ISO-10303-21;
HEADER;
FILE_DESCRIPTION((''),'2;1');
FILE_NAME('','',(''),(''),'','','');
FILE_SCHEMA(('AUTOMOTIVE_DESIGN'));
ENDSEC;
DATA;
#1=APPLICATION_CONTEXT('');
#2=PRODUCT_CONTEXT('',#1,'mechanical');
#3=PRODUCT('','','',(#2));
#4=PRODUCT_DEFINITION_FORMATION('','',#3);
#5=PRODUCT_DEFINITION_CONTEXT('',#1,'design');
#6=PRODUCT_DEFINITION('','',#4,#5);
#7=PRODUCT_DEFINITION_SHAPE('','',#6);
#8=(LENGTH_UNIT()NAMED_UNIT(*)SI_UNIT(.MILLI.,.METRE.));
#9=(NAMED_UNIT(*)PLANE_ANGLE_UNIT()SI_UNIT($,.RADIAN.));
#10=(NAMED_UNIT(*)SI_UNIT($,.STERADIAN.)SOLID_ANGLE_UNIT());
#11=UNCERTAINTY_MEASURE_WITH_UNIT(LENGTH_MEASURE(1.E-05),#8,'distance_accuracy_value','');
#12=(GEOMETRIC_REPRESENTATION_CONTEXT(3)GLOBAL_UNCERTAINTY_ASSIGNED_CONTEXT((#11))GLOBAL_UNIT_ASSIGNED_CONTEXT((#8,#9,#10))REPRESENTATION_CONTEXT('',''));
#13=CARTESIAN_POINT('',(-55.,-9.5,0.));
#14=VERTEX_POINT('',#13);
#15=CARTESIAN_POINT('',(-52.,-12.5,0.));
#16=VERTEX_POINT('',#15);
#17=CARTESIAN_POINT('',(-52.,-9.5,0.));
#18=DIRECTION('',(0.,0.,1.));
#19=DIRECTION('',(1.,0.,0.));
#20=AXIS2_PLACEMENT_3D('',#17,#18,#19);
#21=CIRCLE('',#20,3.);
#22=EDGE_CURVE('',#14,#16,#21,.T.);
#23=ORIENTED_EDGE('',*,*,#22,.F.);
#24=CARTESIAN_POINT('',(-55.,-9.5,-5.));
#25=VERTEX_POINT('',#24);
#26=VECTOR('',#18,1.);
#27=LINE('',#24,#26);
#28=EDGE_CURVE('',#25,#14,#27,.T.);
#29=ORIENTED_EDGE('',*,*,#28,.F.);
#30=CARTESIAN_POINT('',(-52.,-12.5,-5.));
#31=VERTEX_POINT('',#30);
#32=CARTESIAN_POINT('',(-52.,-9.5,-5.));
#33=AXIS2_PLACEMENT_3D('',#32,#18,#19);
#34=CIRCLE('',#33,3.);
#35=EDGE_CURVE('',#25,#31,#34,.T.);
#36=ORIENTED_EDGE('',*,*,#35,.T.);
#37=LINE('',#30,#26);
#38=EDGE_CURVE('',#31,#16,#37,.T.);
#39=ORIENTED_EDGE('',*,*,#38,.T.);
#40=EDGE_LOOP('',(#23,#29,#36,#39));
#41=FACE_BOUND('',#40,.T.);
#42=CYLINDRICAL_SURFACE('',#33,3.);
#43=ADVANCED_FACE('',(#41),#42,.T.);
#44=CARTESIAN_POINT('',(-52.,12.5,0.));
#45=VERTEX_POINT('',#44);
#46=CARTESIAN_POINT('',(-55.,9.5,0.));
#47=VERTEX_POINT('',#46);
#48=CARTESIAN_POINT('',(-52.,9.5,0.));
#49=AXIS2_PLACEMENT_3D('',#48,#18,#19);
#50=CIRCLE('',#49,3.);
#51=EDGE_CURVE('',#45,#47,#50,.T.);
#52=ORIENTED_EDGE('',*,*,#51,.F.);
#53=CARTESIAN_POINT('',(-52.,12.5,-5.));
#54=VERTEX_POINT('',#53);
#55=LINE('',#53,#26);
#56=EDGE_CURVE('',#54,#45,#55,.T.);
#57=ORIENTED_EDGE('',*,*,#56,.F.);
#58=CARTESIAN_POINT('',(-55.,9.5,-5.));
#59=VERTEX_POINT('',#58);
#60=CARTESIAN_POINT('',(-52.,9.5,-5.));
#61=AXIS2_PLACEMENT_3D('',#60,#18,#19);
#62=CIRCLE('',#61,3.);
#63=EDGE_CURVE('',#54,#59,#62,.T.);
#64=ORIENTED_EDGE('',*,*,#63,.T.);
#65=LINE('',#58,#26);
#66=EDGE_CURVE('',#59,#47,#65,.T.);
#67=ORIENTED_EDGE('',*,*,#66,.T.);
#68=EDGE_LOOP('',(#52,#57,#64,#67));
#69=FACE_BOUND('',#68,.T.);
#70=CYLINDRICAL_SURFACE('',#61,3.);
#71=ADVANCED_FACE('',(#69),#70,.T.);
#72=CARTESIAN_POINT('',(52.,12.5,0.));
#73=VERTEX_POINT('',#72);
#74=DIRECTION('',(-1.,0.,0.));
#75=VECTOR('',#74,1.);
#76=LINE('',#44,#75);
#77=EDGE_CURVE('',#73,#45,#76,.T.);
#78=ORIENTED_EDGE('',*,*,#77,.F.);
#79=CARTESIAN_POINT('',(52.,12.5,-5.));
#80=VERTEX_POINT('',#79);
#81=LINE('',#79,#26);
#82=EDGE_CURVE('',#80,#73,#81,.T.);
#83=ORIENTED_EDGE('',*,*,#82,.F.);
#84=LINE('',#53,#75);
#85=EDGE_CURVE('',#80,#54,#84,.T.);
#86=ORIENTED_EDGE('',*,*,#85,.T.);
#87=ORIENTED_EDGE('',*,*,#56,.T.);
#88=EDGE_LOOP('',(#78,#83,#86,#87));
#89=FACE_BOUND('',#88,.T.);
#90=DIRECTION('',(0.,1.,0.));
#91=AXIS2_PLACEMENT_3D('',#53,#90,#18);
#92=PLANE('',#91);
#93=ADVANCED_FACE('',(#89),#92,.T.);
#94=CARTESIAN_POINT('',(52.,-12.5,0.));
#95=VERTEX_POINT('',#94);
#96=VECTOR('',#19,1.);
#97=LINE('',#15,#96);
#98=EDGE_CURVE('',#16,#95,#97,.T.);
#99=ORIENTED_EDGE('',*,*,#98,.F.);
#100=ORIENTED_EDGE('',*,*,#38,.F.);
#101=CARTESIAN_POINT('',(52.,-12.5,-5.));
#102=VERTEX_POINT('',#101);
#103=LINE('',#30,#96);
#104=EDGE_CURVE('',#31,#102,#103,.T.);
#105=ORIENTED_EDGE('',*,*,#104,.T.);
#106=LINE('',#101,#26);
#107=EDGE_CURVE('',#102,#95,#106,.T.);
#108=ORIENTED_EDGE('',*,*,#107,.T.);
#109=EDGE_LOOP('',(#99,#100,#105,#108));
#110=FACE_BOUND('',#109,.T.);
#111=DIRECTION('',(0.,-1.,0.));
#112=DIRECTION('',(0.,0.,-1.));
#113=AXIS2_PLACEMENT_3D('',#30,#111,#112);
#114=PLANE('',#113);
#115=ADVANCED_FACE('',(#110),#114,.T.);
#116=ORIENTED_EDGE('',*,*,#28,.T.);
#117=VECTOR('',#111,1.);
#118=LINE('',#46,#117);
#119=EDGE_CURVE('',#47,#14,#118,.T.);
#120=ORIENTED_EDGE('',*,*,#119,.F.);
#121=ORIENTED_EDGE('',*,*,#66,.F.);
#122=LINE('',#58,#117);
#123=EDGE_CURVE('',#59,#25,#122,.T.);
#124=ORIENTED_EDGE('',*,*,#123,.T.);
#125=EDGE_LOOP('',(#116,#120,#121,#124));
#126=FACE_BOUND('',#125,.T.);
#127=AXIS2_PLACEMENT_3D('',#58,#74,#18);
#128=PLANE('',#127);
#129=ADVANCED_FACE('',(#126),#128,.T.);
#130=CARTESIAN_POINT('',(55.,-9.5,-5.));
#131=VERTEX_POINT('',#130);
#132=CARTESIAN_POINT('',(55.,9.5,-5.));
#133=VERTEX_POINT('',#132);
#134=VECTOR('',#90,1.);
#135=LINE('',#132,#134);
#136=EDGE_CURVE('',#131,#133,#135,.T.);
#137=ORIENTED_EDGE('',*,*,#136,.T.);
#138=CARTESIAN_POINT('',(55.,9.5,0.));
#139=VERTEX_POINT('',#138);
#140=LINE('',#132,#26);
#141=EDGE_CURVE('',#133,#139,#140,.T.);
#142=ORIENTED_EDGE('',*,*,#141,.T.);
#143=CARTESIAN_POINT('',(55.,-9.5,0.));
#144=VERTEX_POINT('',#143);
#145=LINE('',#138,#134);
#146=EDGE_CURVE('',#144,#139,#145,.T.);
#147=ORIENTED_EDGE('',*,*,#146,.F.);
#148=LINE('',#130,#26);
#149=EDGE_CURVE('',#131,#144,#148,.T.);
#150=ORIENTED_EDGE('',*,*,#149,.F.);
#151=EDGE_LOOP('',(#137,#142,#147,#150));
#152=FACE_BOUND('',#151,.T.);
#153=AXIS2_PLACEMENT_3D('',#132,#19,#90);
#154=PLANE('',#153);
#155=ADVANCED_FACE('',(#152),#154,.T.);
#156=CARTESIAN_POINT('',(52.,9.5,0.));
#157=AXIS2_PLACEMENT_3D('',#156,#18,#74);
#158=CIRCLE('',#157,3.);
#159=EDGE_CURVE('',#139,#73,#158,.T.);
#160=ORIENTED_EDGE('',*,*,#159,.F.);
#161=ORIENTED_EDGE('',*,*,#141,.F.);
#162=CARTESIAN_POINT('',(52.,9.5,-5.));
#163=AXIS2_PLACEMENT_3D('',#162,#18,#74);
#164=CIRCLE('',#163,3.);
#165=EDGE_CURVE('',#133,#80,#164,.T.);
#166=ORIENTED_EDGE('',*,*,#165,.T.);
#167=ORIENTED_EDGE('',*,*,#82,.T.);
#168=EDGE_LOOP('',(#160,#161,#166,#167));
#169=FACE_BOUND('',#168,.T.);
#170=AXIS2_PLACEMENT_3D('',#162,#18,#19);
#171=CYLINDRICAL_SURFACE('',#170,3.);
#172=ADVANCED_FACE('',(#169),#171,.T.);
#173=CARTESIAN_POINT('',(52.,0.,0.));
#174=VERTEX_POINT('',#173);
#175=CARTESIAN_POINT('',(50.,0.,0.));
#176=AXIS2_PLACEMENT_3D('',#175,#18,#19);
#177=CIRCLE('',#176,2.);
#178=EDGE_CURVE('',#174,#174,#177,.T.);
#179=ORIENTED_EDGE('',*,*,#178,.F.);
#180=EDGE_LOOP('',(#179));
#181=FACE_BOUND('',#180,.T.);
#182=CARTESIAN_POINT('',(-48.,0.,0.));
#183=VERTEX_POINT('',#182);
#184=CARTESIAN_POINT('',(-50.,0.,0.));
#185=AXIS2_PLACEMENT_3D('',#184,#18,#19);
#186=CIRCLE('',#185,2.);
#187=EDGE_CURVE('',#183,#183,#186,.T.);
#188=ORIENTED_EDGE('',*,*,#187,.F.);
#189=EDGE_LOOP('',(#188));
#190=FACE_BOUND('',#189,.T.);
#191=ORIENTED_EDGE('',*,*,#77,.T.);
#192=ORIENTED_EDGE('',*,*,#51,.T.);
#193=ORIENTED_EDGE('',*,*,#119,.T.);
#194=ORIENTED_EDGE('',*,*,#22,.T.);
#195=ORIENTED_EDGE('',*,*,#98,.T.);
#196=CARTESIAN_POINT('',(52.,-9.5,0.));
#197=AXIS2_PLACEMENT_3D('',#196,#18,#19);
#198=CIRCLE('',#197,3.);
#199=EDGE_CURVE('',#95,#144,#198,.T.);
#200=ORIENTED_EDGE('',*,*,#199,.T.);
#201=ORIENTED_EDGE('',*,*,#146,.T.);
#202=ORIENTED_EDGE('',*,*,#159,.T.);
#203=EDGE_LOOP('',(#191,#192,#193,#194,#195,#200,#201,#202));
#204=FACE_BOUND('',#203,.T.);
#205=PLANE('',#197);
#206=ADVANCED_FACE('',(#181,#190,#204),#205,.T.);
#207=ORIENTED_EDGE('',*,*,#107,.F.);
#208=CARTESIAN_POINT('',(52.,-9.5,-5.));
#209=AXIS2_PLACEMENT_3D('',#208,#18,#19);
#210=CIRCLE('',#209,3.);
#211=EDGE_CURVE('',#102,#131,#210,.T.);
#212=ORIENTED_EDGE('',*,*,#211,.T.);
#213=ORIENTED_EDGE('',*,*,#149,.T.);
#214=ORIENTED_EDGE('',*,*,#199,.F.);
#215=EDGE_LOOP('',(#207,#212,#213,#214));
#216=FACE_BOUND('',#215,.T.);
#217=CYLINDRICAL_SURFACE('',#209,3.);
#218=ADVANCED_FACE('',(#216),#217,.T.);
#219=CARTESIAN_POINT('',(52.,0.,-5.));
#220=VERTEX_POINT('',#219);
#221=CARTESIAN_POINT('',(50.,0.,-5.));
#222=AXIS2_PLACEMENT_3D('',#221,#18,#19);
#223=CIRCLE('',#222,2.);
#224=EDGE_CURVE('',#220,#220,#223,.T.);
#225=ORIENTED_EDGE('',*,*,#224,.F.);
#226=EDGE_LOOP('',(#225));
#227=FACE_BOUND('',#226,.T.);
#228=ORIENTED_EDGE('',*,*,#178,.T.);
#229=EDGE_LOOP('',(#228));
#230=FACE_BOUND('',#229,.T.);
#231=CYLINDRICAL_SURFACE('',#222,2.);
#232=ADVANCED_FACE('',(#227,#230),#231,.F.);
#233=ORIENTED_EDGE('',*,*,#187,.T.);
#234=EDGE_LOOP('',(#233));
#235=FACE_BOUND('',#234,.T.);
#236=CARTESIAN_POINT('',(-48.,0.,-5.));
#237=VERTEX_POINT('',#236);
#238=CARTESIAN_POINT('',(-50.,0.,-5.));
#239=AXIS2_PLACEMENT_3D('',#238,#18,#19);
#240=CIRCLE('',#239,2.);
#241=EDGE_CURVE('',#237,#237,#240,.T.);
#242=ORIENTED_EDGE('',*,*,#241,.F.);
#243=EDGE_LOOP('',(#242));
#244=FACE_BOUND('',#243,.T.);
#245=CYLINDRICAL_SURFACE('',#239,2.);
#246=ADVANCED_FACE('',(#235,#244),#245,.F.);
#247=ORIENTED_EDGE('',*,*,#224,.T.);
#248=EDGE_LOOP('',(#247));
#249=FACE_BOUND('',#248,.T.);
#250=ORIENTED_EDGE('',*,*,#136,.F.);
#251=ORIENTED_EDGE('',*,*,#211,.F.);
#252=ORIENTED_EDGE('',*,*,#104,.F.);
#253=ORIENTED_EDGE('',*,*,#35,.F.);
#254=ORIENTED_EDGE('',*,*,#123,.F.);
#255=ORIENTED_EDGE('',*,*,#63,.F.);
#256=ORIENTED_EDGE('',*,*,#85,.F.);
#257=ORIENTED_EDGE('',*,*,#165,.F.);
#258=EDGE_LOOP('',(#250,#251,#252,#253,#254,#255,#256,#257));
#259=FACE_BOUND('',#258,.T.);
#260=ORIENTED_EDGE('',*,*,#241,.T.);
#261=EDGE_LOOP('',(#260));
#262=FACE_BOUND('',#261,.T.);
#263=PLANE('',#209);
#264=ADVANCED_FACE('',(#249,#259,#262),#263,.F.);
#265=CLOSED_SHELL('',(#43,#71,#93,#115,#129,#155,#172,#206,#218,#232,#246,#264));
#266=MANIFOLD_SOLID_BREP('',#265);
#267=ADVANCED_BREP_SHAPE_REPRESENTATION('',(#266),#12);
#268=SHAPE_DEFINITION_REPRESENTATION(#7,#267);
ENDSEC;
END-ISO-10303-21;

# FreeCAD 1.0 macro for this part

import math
import FreeCAD as App
import Part
import Sketcher
from FreeCAD import Vector
Q = App.Units.Quantity

doc = App.newDocument("Part")
body = doc.addObject("PartDesign::Body", "Body")

# Sketch on XY plane
sketch1 = body.newObject("Sketcher::SketchObject", "Sketch")
sketch1.AttachmentSupport = (doc.getObject("XY_Plane"), [""])
sketch1.MapMode = "FlatFace"
sketch1.addGeometry([
    Part.LineSegment(Vector(52, 12.5, 0), Vector(-52, 12.5, 0)),  # 0
    Part.ArcOfCircle(Part.Circle(Vector(-52, 9.5, 0), Vector(0, 0, 1), 3), math.radians(90), math.radians(180)),  # 1
    Part.LineSegment(Vector(-55, 9.5, 0), Vector(-55, -9.5, 0)),  # 2
    Part.ArcOfCircle(Part.Circle(Vector(-52, -9.5, 0), Vector(0, 0, 1), 3), math.radians(180), math.radians(270)),  # 3
    Part.LineSegment(Vector(-52, -12.5, 0), Vector(52, -12.5, 0)),  # 4
    Part.ArcOfCircle(Part.Circle(Vector(52, -9.5, 0), Vector(0, 0, 1), 3), math.radians(-90), math.radians(0)),  # 5
    Part.LineSegment(Vector(55, -9.5, 0), Vector(55, 9.5, 0)),  # 6
    Part.ArcOfCircle(Part.Circle(Vector(52, 9.5, 0), Vector(0, 0, 1), 3), math.radians(0), math.radians(90)),  # 7
], False)
sketch1.addConstraint([
    Sketcher.Constraint("Tangent", 0, 2, 1, 1),
    Sketcher.Constraint("Tangent", 1, 2, 2, 1),
    Sketcher.Constraint("Tangent", 2, 2, 3, 1),
    Sketcher.Constraint("Tangent", 3, 2, 4, 1),
    Sketcher.Constraint("Tangent", 4, 2, 5, 1),
    Sketcher.Constraint("Tangent", 5, 2, 6, 1),
    Sketcher.Constraint("Tangent", 6, 2, 7, 1),
    Sketcher.Constraint("Tangent", 7, 2, 0, 1),
    Sketcher.Constraint("Horizontal", 0),
    Sketcher.Constraint("Vertical", 2),
    Sketcher.Constraint("Horizontal", 4),
    Sketcher.Constraint("Vertical", 6),
    Sketcher.Constraint("Equal", 1, 3),
    Sketcher.Constraint("Equal", 3, 5),
    Sketcher.Constraint("Equal", 5, 7),
    Sketcher.Constraint("Symmetric", 1, 3, 5, 3, -1, 1),
    Sketcher.Constraint("Radius", 1, Q("3 mm")),
    Sketcher.Constraint("DistanceX", 0, 2, 0, 1, Q("104 mm")),
    Sketcher.Constraint("DistanceY", 2, 2, 2, 1, Q("19 mm")),
])
pad1 = body.newObject("PartDesign::Pad", "Pad")
pad1.Profile = sketch1
pad1.Length = 5
pad1.Reversed = True

# Sketch on XY plane
sketch2 = body.newObject("Sketcher::SketchObject", "Sketch001")
sketch2.AttachmentSupport = (doc.getObject("XY_Plane"), [""])
sketch2.MapMode = "FlatFace"
sketch2.addGeometry([
    Part.Circle(Vector(50, 0, 0), Vector(0, 0, 1), 2),
    Part.Circle(Vector(-50, 0, 0), Vector(0, 0, 1), 2),
], False)
sketch2.addConstraint([
    Sketcher.Constraint("Equal", 0, 1),
    Sketcher.Constraint("Symmetric", 0, 3, 1, 3, -1, 1),
    Sketcher.Constraint("PointOnObject", 0, 3, -1),
    Sketcher.Constraint("Diameter", 0, Q("4 mm")),
    Sketcher.Constraint("DistanceX", -1, 1, 0, 3, Q("50 mm")),
])
pocket1 = body.newObject("PartDesign::Pocket", "Pocket")
pocket1.Profile = sketch2
pocket1.Type = "ThroughAll"

doc.recompute()
